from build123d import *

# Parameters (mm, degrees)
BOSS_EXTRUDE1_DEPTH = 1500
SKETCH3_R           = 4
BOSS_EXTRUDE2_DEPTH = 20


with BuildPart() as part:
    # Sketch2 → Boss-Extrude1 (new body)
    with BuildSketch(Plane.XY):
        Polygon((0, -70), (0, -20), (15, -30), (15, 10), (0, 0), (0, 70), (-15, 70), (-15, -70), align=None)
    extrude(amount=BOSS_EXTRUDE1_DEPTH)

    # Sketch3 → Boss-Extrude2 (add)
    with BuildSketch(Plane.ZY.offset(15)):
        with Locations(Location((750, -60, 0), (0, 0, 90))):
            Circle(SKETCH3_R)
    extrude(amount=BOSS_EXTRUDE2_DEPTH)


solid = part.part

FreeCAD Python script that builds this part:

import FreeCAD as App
import Part
import Sketcher
Q = App.Units.Quantity

doc = App.newDocument("Part")
body = doc.addObject("PartDesign::Body", "Body")

# Sketch on XY plane
sketch1 = body.newObject("Sketcher::SketchObject", "Sketch")
sketch1.AttachmentSupport = (doc.getObject("XY_Plane"), [""])
sketch1.MapMode = "FlatFace"
sketch1.addGeometry([
    Part.LineSegment(App.Vector(0, -70, 0), App.Vector(0, -20, 0)),  # 0
    Part.LineSegment(App.Vector(0, -20, 0), App.Vector(15, -30, 0)),  # 1
    Part.LineSegment(App.Vector(15, -30, 0), App.Vector(15, 10, 0)),  # 2
    Part.LineSegment(App.Vector(15, 10, 0), App.Vector(0, 0, 0)),  # 3
    Part.LineSegment(App.Vector(0, 0, 0), App.Vector(0, 70, 0)),  # 4
    Part.LineSegment(App.Vector(0, 70, 0), App.Vector(-15, 70, 0)),  # 5
    Part.LineSegment(App.Vector(-15, 70, 0), App.Vector(-15, -70, 0)),  # 6
    Part.LineSegment(App.Vector(-15, -70, 0), App.Vector(0, -70, 0)),  # 7
], False)
sketch1.addConstraint([
    Sketcher.Constraint("Coincident", 0, 2, 1, 1),
    Sketcher.Constraint("Coincident", 1, 2, 2, 1),
    Sketcher.Constraint("Coincident", 2, 2, 3, 1),
    Sketcher.Constraint("Coincident", 3, 2, 4, 1),
    Sketcher.Constraint("Coincident", 4, 2, 5, 1),
    Sketcher.Constraint("Coincident", 5, 2, 6, 1),
    Sketcher.Constraint("Coincident", 6, 2, 7, 1),
    Sketcher.Constraint("Coincident", 7, 2, 0, 1),
    Sketcher.Constraint("Vertical", 0),
    Sketcher.Constraint("Vertical", 2),
    Sketcher.Constraint("Vertical", 4),
    Sketcher.Constraint("Horizontal", 5),
    Sketcher.Constraint("Vertical", 6),
    Sketcher.Constraint("Horizontal", 7),
    Sketcher.Constraint("Coincident", 3, 2, -1, 1),
    Sketcher.Constraint("Symmetric", 4, 2, 7, 2, -1, 1),
    Sketcher.Constraint("Equal", 1, 3),
    Sketcher.Constraint("DistanceX", 5, 2, 5, 1, Q("15 mm")),
    Sketcher.Constraint("DistanceY", 0, 1, 0, 2, Q("50 mm")),
    Sketcher.Constraint("DistanceY", 2, 1, 2, 2, Q("40 mm")),
    Sketcher.Constraint("DistanceY", 4, 1, 4, 2, Q("70 mm")),
    Sketcher.Constraint("DistanceX", -1, 1, 1, 2, Q("15 mm")),
])
pad1 = body.newObject("PartDesign::Pad", "Pad")
pad1.Profile = sketch1
pad1.Length = 1500

# Sketch on YZ plane
sketch2 = body.newObject("Sketcher::SketchObject", "Sketch001")
sketch2.AttachmentSupport = (doc.getObject("YZ_Plane"), [""])
sketch2.MapMode = "FlatFace"
sketch2.AttachmentOffset = App.Placement(App.Vector(0, 0, -15), App.Rotation())
sketch2.addGeometry(Part.Circle(App.Vector(-60, 750, 0), App.Vector(0, 0, 1), 4), False)
sketch2.addConstraint([
    Sketcher.Constraint("Diameter", 0, Q("8 mm")),
    Sketcher.Constraint("DistanceX", 0, 3, -1, 1, Q("60 mm")),
    Sketcher.Constraint("DistanceY", -1, 1, 0, 3, Q("750 mm")),
])
pad2 = body.newObject("PartDesign::Pad", "Pad001")
pad2.Profile = sketch2
pad2.Length = 20
pad2.Reversed = True

doc.recompute()
